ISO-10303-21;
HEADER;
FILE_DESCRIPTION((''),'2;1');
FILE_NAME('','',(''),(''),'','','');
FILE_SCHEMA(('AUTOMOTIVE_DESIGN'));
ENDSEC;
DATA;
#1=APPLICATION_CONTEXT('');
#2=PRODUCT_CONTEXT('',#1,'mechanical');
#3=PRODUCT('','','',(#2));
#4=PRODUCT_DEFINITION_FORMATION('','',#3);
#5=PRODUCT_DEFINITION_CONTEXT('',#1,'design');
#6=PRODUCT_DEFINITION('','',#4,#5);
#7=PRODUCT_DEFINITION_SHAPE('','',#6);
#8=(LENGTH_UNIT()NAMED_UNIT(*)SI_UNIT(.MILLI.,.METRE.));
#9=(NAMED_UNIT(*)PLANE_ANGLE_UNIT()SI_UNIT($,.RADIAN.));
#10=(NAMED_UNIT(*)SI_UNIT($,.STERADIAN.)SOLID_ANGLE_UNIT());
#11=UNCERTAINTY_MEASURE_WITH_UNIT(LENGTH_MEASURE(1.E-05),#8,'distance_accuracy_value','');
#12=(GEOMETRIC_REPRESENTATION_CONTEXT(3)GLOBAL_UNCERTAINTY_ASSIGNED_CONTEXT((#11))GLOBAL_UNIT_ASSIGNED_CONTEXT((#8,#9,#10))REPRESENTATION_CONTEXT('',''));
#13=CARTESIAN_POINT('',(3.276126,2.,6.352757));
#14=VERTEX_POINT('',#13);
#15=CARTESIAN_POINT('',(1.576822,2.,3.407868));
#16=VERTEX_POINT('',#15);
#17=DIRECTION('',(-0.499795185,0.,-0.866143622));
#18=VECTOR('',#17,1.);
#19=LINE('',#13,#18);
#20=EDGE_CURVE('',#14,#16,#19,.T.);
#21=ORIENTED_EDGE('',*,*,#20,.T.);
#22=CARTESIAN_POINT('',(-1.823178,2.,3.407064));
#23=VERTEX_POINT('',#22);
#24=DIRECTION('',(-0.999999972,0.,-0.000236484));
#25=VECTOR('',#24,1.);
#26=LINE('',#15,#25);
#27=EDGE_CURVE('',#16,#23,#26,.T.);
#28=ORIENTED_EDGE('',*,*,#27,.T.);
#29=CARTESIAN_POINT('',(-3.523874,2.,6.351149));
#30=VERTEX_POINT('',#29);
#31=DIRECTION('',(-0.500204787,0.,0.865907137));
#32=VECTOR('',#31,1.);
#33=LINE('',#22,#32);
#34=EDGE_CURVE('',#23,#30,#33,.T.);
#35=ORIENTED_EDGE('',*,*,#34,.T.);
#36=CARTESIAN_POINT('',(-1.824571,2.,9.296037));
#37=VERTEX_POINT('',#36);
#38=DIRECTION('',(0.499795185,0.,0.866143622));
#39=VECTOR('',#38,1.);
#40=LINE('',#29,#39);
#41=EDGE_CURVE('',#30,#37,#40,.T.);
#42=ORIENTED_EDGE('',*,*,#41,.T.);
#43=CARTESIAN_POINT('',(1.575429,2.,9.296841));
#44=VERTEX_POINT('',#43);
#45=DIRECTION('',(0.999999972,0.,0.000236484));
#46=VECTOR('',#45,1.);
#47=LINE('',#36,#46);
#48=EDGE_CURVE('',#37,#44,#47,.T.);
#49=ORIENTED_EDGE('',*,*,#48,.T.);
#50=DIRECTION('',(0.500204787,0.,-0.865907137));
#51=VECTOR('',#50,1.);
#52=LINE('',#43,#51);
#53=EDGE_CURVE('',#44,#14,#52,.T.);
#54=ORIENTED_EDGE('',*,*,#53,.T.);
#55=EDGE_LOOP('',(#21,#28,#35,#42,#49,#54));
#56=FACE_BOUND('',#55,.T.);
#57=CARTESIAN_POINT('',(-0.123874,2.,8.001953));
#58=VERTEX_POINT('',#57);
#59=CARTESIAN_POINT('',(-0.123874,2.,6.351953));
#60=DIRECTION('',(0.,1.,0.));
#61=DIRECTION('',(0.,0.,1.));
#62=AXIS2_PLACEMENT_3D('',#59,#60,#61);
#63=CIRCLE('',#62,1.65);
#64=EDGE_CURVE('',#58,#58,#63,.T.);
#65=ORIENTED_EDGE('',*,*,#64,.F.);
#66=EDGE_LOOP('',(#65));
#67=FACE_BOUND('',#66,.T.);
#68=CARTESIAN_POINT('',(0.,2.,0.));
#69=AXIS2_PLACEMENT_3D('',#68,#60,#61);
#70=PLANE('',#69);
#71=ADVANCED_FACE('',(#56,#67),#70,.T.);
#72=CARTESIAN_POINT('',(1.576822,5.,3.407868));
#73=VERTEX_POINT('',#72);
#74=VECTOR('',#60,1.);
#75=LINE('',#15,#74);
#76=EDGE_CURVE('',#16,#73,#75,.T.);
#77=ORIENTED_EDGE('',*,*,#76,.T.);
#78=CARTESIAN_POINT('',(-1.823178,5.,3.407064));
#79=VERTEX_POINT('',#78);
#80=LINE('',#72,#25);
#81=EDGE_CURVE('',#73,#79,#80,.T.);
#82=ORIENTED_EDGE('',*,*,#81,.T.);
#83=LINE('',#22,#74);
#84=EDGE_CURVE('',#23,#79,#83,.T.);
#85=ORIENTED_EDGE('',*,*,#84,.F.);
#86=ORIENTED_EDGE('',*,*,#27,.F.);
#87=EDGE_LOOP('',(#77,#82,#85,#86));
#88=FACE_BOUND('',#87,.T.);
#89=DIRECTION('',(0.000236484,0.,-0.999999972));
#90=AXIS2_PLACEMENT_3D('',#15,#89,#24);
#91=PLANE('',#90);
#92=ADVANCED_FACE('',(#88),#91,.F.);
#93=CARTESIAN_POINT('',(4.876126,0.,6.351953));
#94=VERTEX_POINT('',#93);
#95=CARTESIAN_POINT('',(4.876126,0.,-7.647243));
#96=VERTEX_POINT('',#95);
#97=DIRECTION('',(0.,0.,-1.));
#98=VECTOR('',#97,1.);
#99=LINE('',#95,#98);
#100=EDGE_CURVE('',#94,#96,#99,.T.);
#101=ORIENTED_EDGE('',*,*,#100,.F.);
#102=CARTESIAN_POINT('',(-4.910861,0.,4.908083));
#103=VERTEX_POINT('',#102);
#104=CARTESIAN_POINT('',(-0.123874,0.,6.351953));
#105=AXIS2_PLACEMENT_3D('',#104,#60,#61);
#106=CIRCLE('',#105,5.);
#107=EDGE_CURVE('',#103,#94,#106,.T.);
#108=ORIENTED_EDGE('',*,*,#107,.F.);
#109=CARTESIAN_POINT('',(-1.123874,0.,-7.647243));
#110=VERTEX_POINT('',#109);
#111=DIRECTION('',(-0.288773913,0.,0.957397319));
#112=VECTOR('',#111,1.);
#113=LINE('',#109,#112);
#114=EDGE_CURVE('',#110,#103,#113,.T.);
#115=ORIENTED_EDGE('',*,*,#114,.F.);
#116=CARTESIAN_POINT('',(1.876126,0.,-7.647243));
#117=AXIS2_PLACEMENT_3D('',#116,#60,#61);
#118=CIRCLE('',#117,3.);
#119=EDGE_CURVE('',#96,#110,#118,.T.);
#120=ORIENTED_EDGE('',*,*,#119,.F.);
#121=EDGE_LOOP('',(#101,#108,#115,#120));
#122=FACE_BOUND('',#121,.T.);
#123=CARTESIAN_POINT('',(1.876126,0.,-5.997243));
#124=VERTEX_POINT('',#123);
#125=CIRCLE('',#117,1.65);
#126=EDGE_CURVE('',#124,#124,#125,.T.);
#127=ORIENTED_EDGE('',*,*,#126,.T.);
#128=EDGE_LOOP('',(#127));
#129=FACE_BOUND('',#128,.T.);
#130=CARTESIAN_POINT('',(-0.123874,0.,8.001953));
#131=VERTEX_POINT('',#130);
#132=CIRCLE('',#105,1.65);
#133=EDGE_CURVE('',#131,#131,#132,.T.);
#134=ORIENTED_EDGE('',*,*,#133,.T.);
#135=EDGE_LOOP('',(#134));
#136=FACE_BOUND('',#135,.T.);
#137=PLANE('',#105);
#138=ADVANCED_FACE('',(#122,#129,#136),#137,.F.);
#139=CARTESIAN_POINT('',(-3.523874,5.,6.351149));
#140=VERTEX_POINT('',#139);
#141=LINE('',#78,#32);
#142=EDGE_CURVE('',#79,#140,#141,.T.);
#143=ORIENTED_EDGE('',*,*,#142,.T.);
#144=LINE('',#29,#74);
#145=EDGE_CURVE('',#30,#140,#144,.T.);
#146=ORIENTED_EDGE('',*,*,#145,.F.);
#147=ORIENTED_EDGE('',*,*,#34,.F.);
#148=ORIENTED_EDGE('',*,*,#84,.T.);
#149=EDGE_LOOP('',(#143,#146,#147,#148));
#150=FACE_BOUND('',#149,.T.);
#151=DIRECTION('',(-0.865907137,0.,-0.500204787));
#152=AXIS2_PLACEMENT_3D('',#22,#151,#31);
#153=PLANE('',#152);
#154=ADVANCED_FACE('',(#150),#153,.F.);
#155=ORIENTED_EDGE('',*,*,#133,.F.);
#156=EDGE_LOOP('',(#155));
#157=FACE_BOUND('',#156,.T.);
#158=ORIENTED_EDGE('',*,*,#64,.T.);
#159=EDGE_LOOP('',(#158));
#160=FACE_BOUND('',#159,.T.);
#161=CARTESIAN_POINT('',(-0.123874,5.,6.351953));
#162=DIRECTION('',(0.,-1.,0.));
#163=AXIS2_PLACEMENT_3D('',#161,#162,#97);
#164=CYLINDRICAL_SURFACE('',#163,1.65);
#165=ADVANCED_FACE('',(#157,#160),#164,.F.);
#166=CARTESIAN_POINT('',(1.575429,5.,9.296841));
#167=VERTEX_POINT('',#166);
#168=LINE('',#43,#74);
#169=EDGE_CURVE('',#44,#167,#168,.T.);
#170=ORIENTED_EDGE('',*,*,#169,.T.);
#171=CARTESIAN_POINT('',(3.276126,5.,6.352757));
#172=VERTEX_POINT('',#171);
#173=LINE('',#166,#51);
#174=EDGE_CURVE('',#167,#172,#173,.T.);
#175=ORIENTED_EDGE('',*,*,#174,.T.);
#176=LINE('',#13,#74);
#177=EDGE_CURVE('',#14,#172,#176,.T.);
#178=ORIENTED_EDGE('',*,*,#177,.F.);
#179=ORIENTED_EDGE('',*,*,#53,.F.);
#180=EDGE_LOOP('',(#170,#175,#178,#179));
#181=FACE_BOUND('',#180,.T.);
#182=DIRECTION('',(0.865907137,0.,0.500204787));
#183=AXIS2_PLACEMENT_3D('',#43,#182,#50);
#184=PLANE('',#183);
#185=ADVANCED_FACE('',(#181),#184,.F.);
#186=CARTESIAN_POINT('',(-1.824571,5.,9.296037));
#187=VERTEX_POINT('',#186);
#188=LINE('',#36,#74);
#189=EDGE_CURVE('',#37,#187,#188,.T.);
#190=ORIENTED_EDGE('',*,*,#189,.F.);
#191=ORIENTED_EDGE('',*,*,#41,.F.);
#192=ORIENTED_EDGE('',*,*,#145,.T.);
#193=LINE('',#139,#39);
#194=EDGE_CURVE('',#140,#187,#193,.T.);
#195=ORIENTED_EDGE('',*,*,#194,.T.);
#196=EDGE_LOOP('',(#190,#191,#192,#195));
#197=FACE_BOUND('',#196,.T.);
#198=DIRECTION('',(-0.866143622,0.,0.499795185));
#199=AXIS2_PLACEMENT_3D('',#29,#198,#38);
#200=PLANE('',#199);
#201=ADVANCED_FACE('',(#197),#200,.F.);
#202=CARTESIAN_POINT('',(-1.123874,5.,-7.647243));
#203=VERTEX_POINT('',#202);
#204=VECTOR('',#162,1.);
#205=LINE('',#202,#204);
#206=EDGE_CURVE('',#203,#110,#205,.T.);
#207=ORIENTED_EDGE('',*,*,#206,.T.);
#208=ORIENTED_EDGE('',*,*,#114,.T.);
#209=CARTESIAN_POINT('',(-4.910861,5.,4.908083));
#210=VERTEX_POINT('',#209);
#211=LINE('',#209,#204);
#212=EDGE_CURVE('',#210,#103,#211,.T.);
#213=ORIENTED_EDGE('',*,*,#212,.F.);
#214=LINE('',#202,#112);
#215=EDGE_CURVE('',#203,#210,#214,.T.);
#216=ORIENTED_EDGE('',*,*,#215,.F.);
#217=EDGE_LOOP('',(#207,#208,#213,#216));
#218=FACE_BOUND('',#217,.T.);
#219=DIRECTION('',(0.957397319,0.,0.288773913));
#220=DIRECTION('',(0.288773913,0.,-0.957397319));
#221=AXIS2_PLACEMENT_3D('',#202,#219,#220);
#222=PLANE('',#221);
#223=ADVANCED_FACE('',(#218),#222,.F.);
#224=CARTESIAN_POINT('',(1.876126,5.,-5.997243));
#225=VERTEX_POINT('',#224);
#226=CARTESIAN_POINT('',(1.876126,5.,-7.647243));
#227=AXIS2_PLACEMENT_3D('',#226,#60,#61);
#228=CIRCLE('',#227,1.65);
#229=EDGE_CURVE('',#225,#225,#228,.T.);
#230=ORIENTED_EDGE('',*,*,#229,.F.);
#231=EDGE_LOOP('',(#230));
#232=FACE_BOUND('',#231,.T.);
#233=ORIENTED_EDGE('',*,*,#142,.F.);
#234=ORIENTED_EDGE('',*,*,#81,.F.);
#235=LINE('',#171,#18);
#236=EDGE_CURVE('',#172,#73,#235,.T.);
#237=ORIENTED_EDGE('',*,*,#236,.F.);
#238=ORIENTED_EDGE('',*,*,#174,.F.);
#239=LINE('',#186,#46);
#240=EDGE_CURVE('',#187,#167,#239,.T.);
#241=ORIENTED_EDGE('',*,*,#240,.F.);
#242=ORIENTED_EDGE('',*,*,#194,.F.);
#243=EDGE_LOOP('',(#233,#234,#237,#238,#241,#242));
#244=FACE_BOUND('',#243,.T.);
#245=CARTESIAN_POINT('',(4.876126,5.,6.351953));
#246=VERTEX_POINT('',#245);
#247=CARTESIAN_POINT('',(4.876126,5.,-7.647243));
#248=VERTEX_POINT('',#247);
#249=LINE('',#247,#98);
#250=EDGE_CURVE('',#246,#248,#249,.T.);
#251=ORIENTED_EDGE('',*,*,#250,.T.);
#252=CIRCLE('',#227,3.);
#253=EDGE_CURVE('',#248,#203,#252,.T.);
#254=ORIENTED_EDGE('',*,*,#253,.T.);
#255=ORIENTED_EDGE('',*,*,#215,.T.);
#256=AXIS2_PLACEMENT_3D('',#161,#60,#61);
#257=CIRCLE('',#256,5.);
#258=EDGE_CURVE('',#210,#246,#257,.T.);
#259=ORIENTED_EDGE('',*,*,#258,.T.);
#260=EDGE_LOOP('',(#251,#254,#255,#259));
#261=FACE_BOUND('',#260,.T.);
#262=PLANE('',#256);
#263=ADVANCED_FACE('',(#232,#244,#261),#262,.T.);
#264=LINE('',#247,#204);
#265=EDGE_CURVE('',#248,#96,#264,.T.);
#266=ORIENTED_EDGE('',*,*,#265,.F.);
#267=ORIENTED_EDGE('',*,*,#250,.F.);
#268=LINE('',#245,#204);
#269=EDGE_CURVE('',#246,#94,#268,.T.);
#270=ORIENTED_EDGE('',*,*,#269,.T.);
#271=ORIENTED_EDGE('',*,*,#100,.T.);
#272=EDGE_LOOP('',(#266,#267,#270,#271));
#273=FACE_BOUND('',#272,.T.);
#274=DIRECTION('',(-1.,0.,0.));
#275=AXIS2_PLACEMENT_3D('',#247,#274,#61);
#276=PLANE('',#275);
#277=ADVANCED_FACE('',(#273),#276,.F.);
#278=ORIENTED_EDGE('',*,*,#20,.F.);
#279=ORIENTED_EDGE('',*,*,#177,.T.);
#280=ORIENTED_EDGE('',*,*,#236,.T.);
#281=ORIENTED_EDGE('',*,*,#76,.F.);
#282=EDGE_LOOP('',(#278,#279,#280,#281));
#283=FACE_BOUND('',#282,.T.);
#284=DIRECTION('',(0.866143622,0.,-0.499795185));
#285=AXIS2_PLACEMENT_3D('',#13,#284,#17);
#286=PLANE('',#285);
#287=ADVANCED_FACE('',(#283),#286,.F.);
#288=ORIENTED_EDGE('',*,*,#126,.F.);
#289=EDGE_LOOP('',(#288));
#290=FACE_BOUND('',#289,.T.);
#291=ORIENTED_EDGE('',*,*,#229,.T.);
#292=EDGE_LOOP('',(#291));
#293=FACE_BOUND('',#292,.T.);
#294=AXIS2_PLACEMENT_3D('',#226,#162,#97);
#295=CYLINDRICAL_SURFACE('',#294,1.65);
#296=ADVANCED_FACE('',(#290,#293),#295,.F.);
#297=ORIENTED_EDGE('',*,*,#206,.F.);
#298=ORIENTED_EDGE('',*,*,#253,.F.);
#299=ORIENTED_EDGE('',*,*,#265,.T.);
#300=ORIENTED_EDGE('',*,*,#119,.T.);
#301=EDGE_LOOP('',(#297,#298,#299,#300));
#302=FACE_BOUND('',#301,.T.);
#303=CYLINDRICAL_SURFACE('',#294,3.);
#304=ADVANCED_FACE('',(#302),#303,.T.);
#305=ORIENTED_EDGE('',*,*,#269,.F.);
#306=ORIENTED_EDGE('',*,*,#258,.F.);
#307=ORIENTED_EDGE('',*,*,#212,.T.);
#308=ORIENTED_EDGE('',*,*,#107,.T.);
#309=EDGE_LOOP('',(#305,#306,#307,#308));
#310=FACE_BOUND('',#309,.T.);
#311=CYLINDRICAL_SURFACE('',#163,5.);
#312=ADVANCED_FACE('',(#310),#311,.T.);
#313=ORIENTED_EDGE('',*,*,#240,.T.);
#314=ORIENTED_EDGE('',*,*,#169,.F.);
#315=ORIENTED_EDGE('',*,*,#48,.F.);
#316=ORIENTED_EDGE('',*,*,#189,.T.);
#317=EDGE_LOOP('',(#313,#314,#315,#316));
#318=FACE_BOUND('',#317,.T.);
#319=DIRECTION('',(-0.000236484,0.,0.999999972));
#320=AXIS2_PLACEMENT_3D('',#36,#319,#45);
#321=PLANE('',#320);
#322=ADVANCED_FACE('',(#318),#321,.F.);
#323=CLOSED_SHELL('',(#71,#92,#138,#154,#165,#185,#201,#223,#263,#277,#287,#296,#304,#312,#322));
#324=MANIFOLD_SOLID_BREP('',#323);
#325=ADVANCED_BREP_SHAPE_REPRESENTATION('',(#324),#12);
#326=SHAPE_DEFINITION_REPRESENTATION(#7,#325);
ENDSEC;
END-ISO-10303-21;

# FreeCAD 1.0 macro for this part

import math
import FreeCAD as App
import Part
import Sketcher
from FreeCAD import Vector


def add_polygon(sketch, points):
    """Adds a closed chain of lines whose ends are joined by coincident constraints."""
    first, n = sketch.GeometryCount, len(points)
    for a, b in zip(points, points[1:] + points[:1]):
        sketch.addGeometry(Part.LineSegment(App.Vector(*a, 0), App.Vector(*b, 0)), False)
    for i in range(n):
        sketch.addConstraint(Sketcher.Constraint("Coincident", first + i, 2, first + (i + 1) % n, 1))

doc = App.newDocument("Part")
params = doc.addObject("Spreadsheet::Sheet", "Params")
for row, (alias, value) in enumerate([
    ("sketch1_radius", "5 mm"),
    ("sketch1_radius2", "3 mm"),
    ("sketch1_diameter", "3.3 mm"),
    ("pad1_length", "5 mm"),
    ("sketch2_length", "3.4 mm"),
    ("pocket1_length", "3 mm"),
], start=1):
    params.set(f"A{row}", alias)
    params.set(f"B{row}", "=" + value)
    params.setAlias(f"B{row}", alias)

body = doc.addObject("PartDesign::Body", "Body")

sketch1 = body.newObject("Sketcher::SketchObject", "Sketch")
sketch1.AttachmentSupport = (doc.getObject("XZ_Plane"), [""])
sketch1.MapMode = "FlatFace"
sketch1.addGeometry([
    Part.LineSegment(Vector(-1.1, -7.6, 0), Vector(-4.9, 4.9, 0)),
    Part.ArcOfCircle(Part.Circle(Vector(-0.1, 6.4, 0), Vector(0, 0, 1), 5), math.radians(0), math.radians(197)),
    Part.LineSegment(Vector(4.9, 6.4, 0), Vector(4.9, -7.6, 0)),
    Part.ArcOfCircle(Part.Circle(Vector(1.9, -7.6, 0), Vector(0, 0, 1), 3), math.radians(180), math.radians(360)),
    Part.Circle(Vector(-0.1, 6.4, 0), Vector(0, 0, 1), 1.6),
    Part.Circle(Vector(1.9, -7.6, 0), Vector(0, 0, 1), 1.6),
], False)
sketch1.addConstraint([
    Sketcher.Constraint("Tangent", 0, 2, 1, 2),
    Sketcher.Constraint("Tangent", 1, 1, 2, 1),
    Sketcher.Constraint("Tangent", 2, 2, 3, 2),
    Sketcher.Constraint("Coincident", 3, 1, 0, 1),
    Sketcher.Constraint("Vertical", 2),
    Sketcher.Constraint("Coincident", 4, 3, 1, 3),
    Sketcher.Constraint("Coincident", 5, 3, 3, 3),
    Sketcher.Constraint("Equal", 4, 5),
    Sketcher.Constraint("Horizontal", 2, 2, 3, 1),
    Sketcher.Constraint("Radius", 1, 5.0),
    Sketcher.Constraint("Radius", 3, 3.0),
    Sketcher.Constraint("Diameter", 4, 3.3),
    Sketcher.Constraint("Distance", 0, 13.114019),
    Sketcher.Constraint("DistanceX", 0, 2, -1, 1, 4.910861),
    Sketcher.Constraint("DistanceY", -1, 1, 1, 3, 6.351953),
])
sketch1.setExpression("Constraints[9]", "Params.sketch1_radius")
sketch1.setExpression("Constraints[10]", "Params.sketch1_radius2")
sketch1.setExpression("Constraints[11]", "Params.sketch1_diameter")
pad1 = body.newObject("PartDesign::Pad", "Pad")
pad1.Profile = sketch1
pad1.setExpression("Length", "Params.pad1_length")
pad1.Reversed = True

sketch2 = body.newObject("Sketcher::SketchObject", "Sketch001")
sketch2.AttachmentSupport = (doc.getObject("XZ_Plane"), [""])
sketch2.MapMode = "FlatFace"
sketch2.AttachmentOffset = App.Placement(Vector(0, 0, -5), App.Rotation())
add_polygon(sketch2, [(3.3, 6.4), (1.6, 3.4), (-1.8, 3.4), (-3.5, 6.4), (-1.8, 9.3), (1.6, 9.3)])
sketch2.addConstraint([
    Sketcher.Constraint("Parallel", 0, 3),
    Sketcher.Constraint("Parallel", 1, 4),
    Sketcher.Constraint("Parallel", 2, 5),
    Sketcher.Constraint("Equal", 0, 1),
    Sketcher.Constraint("Equal", 1, 2),
    Sketcher.Constraint("Equal", 2, 3),
    Sketcher.Constraint("Distance", 0, 3.4),
    Sketcher.Constraint("DistanceX", 2, 2, 5, 2, 6.8),
    Sketcher.Constraint("DistanceX", -1, 1, 0, 2, 1.576822),
    Sketcher.Constraint("DistanceY", -1, 1, 0, 2, 3.407868),
    Sketcher.Constraint("DistanceY", -1, 1, 2, 2, 6.351149),
    Sketcher.Constraint("DistanceX", 3, 2, -1, 1, 1.824571),
])
sketch2.setExpression("Constraints[12]", "Params.sketch2_length")
pocket1 = body.newObject("PartDesign::Pocket", "Pocket")
pocket1.Profile = sketch2
pocket1.setExpression("Length", "Params.pocket1_length")
pocket1.Reversed = True

doc.recompute()
